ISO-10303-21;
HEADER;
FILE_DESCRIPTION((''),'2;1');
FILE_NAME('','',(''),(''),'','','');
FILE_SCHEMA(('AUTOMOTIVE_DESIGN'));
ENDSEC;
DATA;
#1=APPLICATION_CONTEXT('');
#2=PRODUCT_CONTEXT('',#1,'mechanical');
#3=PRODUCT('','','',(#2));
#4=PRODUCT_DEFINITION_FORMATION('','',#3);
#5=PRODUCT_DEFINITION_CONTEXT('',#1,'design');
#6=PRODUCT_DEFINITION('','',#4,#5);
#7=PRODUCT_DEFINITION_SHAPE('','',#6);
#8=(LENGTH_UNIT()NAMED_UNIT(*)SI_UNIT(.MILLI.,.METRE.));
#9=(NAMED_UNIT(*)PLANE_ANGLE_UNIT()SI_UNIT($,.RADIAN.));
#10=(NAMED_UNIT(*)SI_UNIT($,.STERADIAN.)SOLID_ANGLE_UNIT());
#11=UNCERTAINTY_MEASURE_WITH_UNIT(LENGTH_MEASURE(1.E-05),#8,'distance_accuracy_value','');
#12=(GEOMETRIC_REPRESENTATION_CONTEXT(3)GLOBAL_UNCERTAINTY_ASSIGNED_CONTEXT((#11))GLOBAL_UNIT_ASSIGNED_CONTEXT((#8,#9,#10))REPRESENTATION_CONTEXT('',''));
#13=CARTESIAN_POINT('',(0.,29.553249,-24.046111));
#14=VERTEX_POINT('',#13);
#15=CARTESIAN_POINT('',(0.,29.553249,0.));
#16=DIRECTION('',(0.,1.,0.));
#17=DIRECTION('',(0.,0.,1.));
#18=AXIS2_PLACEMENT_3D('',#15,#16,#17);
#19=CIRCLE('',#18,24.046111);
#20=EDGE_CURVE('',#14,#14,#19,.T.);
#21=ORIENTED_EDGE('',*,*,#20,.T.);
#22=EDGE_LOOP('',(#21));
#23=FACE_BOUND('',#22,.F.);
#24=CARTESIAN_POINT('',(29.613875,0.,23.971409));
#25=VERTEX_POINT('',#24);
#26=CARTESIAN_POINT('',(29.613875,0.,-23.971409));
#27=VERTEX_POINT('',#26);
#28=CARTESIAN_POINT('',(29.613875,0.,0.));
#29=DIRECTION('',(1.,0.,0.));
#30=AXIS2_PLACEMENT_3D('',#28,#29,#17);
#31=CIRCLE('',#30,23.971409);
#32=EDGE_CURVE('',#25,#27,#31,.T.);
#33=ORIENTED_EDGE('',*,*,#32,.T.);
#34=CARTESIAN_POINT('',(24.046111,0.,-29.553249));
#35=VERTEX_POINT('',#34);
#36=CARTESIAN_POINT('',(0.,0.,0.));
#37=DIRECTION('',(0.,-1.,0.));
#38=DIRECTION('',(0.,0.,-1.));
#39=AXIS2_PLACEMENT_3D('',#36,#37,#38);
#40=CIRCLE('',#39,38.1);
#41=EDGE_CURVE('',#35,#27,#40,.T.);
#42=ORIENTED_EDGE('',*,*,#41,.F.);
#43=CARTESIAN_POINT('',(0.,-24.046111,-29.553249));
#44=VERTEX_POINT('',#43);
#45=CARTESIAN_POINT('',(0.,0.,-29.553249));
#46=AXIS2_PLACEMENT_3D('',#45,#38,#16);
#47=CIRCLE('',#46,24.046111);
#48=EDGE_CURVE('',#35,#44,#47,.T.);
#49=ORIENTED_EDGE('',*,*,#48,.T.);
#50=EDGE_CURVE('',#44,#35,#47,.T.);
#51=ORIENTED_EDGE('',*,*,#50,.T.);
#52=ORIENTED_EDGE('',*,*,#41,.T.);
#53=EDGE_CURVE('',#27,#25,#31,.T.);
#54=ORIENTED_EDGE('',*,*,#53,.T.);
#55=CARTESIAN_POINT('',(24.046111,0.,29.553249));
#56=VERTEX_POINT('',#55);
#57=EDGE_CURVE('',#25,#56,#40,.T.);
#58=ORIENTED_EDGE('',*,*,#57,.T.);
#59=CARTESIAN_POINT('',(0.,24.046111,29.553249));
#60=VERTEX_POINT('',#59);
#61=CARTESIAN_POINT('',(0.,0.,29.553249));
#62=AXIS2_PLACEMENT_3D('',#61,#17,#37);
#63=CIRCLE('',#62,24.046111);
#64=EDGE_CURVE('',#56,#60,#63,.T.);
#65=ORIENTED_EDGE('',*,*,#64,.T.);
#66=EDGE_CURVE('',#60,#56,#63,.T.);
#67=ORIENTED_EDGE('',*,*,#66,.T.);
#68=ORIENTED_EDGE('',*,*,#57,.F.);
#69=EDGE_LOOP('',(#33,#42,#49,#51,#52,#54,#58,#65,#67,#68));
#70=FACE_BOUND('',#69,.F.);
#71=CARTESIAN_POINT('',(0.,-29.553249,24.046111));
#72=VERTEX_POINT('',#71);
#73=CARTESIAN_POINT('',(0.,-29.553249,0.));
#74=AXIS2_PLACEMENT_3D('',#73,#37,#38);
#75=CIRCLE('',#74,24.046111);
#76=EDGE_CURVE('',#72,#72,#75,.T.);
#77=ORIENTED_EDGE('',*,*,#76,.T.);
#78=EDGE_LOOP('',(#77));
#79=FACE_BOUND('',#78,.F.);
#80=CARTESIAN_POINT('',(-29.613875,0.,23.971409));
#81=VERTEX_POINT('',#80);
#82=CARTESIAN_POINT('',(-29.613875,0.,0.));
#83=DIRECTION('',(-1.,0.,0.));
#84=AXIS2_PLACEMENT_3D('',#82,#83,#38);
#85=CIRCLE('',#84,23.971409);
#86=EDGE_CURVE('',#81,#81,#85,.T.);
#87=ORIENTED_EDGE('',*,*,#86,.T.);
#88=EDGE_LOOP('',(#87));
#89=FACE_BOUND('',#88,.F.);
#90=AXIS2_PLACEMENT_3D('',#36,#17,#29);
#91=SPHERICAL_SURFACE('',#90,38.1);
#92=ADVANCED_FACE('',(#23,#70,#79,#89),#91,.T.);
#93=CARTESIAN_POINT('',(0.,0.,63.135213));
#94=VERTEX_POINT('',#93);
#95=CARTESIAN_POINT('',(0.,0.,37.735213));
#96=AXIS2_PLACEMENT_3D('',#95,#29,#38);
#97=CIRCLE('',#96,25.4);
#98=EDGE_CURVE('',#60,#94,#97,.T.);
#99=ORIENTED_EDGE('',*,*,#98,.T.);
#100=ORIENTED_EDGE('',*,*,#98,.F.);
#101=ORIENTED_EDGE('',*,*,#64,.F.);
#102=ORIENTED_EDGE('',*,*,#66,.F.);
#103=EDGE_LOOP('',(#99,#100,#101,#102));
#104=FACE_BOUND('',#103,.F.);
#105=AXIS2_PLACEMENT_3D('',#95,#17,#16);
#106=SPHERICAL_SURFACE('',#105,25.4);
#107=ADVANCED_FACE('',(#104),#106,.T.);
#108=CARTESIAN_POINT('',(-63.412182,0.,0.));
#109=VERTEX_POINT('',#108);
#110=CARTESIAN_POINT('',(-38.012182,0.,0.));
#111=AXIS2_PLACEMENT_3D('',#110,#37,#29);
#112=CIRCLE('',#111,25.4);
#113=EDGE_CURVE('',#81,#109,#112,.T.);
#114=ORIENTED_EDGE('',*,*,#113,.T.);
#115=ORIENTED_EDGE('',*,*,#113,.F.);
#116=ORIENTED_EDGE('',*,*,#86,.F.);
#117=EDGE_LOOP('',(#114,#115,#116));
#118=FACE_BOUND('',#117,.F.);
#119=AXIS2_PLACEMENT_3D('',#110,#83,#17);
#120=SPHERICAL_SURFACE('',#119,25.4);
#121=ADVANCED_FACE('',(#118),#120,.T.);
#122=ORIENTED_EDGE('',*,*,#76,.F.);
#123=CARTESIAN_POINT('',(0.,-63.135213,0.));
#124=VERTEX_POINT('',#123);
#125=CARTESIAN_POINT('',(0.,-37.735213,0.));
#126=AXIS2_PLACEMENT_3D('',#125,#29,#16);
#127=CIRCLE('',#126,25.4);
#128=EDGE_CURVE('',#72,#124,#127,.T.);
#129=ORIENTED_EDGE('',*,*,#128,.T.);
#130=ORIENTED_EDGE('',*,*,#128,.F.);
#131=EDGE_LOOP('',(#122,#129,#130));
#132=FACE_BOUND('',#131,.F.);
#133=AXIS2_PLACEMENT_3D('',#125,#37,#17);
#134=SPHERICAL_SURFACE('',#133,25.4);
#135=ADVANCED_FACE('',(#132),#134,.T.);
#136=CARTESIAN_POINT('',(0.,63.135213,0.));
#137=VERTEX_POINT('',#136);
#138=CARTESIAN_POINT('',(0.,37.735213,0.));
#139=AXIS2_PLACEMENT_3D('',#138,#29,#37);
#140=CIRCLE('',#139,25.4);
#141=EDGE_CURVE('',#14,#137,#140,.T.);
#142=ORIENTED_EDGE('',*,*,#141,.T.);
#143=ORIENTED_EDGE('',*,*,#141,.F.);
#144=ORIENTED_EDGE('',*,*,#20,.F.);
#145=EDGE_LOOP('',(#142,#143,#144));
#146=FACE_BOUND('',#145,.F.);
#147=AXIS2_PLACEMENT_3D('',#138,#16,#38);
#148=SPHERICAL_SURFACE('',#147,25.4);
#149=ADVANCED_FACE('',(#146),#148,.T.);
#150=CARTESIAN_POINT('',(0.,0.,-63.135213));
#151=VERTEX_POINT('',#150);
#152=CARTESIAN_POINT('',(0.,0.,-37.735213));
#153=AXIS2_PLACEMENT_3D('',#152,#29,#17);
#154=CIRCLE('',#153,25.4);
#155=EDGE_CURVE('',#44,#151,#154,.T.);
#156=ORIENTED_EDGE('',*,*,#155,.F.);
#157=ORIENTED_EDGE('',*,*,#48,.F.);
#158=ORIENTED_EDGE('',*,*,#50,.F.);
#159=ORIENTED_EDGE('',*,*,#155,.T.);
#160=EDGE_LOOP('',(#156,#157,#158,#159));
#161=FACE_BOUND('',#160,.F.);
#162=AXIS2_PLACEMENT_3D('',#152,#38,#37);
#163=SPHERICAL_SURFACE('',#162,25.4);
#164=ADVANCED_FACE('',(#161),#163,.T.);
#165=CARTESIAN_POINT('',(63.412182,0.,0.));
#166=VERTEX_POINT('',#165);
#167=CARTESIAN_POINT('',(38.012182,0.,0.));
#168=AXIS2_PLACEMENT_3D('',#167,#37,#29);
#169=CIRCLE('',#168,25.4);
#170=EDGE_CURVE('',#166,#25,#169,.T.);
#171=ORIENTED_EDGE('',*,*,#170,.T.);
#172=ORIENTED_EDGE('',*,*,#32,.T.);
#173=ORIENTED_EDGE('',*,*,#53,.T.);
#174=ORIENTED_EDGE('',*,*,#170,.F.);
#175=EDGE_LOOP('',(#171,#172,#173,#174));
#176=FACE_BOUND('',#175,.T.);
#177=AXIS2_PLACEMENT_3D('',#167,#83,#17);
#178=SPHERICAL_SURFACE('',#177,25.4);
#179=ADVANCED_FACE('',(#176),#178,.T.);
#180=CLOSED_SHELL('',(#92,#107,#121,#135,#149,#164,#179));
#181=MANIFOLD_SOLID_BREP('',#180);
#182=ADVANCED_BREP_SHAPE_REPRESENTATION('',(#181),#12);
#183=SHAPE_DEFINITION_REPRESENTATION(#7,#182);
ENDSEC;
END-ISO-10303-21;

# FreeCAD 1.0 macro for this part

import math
import FreeCAD as App
import Part
import Sketcher
from FreeCAD import Vector
Q = App.Units.Quantity

doc = App.newDocument("Part")
body = doc.addObject("PartDesign::Body", "Body")

sketch1 = body.newObject("Sketcher::SketchObject", "Sketch")
sketch1.AttachmentSupport = (doc.getObject("XZ_Plane"), [""])
sketch1.MapMode = "FlatFace"
sketch1.addGeometry([
    Part.LineSegment(Vector(0, 38, 0), Vector(0, -38, 0)),
    Part.ArcOfCircle(Part.Circle(Vector(0, 0, 0), Vector(0, 0, 1), 38), math.radians(-90), math.radians(90)),
], False)
sketch1.addConstraint([
    Sketcher.Constraint("Coincident", 0, 1, 1, 2),
    Sketcher.Constraint("Coincident", 1, 1, 0, 2),
    Sketcher.Constraint("Vertical", 0),
    Sketcher.Constraint("Coincident", 1, 3, -1, 1),
    Sketcher.Constraint("PointOnObject", 0, 1, -2),
    Sketcher.Constraint("Radius", 1, Q("1.5 in")),
])
revolution = body.newObject("PartDesign::Revolution", "Revolution")
revolution.Profile = sketch1
revolution.ReferenceAxis = (sketch1, ["V_Axis"])
revolution.Angle = 360

sketch2 = body.newObject("Sketcher::SketchObject", "Sketch001")
sketch2.AttachmentSupport = (doc.getObject("YZ_Plane"), [""])
sketch2.MapMode = "FlatFace"
sketch2.addGeometry([
    Part.LineSegment(Vector(0, 63, 0), Vector(0, 12, 0)),
    Part.ArcOfCircle(Part.Circle(Vector(0, 38, 0), Vector(0, 0, 1), 25), math.radians(-90), math.radians(90)),
], False)
sketch2.addConstraint([
    Sketcher.Constraint("Coincident", 0, 1, 1, 2),
    Sketcher.Constraint("Coincident", 1, 1, 0, 2),
    Sketcher.Constraint("Vertical", 0),
    Sketcher.Constraint("PointOnObject", 1, 3, -2),
    Sketcher.Constraint("PointOnObject", 0, 1, -2),
    Sketcher.Constraint("Radius", 1, Q("1 in")),
    Sketcher.Constraint("DistanceY", -1, 1, 1, 3, Q("37.735213 mm")),
])
revolution2 = body.newObject("PartDesign::Revolution", "Revolution001")
revolution2.Profile = sketch2
revolution2.ReferenceAxis = (sketch2, ["V_Axis"])
revolution2.Angle = 360

sketch3 = body.newObject("Sketcher::SketchObject", "Sketch002")
sketch3.AttachmentSupport = (doc.getObject("YZ_Plane"), [""])
sketch3.MapMode = "FlatFace"
sketch3.addGeometry([
    Part.ArcOfCircle(Part.Circle(Vector(-38, 0, 0), Vector(0, 0, 1), 25), math.radians(0), math.radians(180)),
    Part.LineSegment(Vector(-63, 0, 0), Vector(-12, 0, 0)),
], False)
sketch3.addConstraint([
    Sketcher.Constraint("Coincident", 0, 1, 1, 2),
    Sketcher.Constraint("Coincident", 1, 1, 0, 2),
    Sketcher.Constraint("Horizontal", 1),
    Sketcher.Constraint("PointOnObject", 0, 3, -1),
    Sketcher.Constraint("PointOnObject", 0, 1, -1),
    Sketcher.Constraint("Radius", 0, Q("1 in")),
    Sketcher.Constraint("DistanceX", 0, 3, -1, 1, Q("37.735213 mm")),
])
revolution3 = body.newObject("PartDesign::Revolution", "Revolution002")
revolution3.Profile = sketch3
revolution3.ReferenceAxis = (sketch3, ["H_Axis"])
revolution3.Angle = 360

sketch4 = body.newObject("Sketcher::SketchObject", "Sketch003")
sketch4.AttachmentSupport = (doc.getObject("YZ_Plane"), [""])
sketch4.MapMode = "FlatFace"
sketch4.addGeometry([
    Part.ArcOfCircle(Part.Circle(Vector(0, -38, 0), Vector(0, 0, 1), 25), math.radians(90), math.radians(270)),
    Part.LineSegment(Vector(0, -63, 0), Vector(0, -12, 0)),
], False)
sketch4.addConstraint([
    Sketcher.Constraint("Coincident", 0, 1, 1, 2),
    Sketcher.Constraint("Coincident", 1, 1, 0, 2),
    Sketcher.Constraint("Vertical", 1),
    Sketcher.Constraint("PointOnObject", 0, 3, -2),
    Sketcher.Constraint("PointOnObject", 0, 1, -2),
    Sketcher.Constraint("Radius", 0, Q("1 in")),
    Sketcher.Constraint("DistanceY", 0, 3, -1, 1, Q("37.735213 mm")),
])
revolution4 = body.newObject("PartDesign::Revolution", "Revolution003")
revolution4.Profile = sketch4
revolution4.ReferenceAxis = (sketch4, ["V_Axis"])
revolution4.Angle = 360

sketch5 = body.newObject("Sketcher::SketchObject", "Sketch004")
sketch5.AttachmentSupport = (doc.getObject("YZ_Plane"), [""])
sketch5.MapMode = "FlatFace"
sketch5.addGeometry([
    Part.ArcOfCircle(Part.Circle(Vector(38, 0, 0), Vector(0, 0, 1), 25), math.radians(180), math.radians(360)),
    Part.LineSegment(Vector(63, 0, 0), Vector(12, 0, 0)),
], False)
sketch5.addConstraint([
    Sketcher.Constraint("Coincident", 0, 1, 1, 2),
    Sketcher.Constraint("Coincident", 1, 1, 0, 2),
    Sketcher.Constraint("Horizontal", 1),
    Sketcher.Constraint("PointOnObject", 0, 3, -1),
    Sketcher.Constraint("PointOnObject", 0, 1, -1),
    Sketcher.Constraint("Radius", 0, Q("1 in")),
    Sketcher.Constraint("DistanceX", -1, 1, 0, 3, Q("37.735213 mm")),
])
revolution5 = body.newObject("PartDesign::Revolution", "Revolution004")
revolution5.Profile = sketch5
revolution5.ReferenceAxis = (sketch5, ["H_Axis"])
revolution5.Angle = 360

sketch6 = body.newObject("Sketcher::SketchObject", "Sketch005")
sketch6.AttachmentSupport = (doc.getObject("XZ_Plane"), [""])
sketch6.MapMode = "FlatFace"
sketch6.addGeometry([
    Part.LineSegment(Vector(-63, 0, 0), Vector(-13, 0, 0)),
    Part.ArcOfCircle(Part.Circle(Vector(-38, 0, 0), Vector(0, 0, 1), 25), math.radians(0), math.radians(180)),
], False)
sketch6.addConstraint([
    Sketcher.Constraint("Coincident", 0, 1, 1, 2),
    Sketcher.Constraint("Coincident", 1, 1, 0, 2),
    Sketcher.Constraint("Horizontal", 0),
    Sketcher.Constraint("PointOnObject", 1, 3, -1),
    Sketcher.Constraint("PointOnObject", 0, 1, -1),
    Sketcher.Constraint("Radius", 1, Q("1 in")),
    Sketcher.Constraint("DistanceX", 1, 3, -1, 1, Q("38.012182 mm")),
])
revolution6 = body.newObject("PartDesign::Revolution", "Revolution005")
revolution6.Profile = sketch6
revolution6.ReferenceAxis = (sketch6, ["H_Axis"])
revolution6.Angle = 360

sketch7 = body.newObject("Sketcher::SketchObject", "Sketch006")
sketch7.AttachmentSupport = (doc.getObject("XZ_Plane"), [""])
sketch7.MapMode = "FlatFace"
sketch7.addGeometry([
    Part.LineSegment(Vector(13, 0, 0), Vector(63, 0, 0)),
    Part.ArcOfCircle(Part.Circle(Vector(38, 0, 0), Vector(0, 0, 1), 25), math.radians(0), math.radians(180)),
], False)
sketch7.addConstraint([
    Sketcher.Constraint("Coincident", 0, 1, 1, 2),
    Sketcher.Constraint("Coincident", 1, 1, 0, 2),
    Sketcher.Constraint("Horizontal", 0),
    Sketcher.Constraint("PointOnObject", 1, 3, -1),
    Sketcher.Constraint("PointOnObject", 0, 1, -1),
    Sketcher.Constraint("Radius", 1, Q("1 in")),
    Sketcher.Constraint("DistanceX", -1, 1, 1, 3, Q("38.012182 mm")),
])
revolution7 = body.newObject("PartDesign::Revolution", "Revolution006")
revolution7.Profile = sketch7
revolution7.ReferenceAxis = (sketch7, ["H_Axis"])
revolution7.Angle = 360

doc.recompute()
